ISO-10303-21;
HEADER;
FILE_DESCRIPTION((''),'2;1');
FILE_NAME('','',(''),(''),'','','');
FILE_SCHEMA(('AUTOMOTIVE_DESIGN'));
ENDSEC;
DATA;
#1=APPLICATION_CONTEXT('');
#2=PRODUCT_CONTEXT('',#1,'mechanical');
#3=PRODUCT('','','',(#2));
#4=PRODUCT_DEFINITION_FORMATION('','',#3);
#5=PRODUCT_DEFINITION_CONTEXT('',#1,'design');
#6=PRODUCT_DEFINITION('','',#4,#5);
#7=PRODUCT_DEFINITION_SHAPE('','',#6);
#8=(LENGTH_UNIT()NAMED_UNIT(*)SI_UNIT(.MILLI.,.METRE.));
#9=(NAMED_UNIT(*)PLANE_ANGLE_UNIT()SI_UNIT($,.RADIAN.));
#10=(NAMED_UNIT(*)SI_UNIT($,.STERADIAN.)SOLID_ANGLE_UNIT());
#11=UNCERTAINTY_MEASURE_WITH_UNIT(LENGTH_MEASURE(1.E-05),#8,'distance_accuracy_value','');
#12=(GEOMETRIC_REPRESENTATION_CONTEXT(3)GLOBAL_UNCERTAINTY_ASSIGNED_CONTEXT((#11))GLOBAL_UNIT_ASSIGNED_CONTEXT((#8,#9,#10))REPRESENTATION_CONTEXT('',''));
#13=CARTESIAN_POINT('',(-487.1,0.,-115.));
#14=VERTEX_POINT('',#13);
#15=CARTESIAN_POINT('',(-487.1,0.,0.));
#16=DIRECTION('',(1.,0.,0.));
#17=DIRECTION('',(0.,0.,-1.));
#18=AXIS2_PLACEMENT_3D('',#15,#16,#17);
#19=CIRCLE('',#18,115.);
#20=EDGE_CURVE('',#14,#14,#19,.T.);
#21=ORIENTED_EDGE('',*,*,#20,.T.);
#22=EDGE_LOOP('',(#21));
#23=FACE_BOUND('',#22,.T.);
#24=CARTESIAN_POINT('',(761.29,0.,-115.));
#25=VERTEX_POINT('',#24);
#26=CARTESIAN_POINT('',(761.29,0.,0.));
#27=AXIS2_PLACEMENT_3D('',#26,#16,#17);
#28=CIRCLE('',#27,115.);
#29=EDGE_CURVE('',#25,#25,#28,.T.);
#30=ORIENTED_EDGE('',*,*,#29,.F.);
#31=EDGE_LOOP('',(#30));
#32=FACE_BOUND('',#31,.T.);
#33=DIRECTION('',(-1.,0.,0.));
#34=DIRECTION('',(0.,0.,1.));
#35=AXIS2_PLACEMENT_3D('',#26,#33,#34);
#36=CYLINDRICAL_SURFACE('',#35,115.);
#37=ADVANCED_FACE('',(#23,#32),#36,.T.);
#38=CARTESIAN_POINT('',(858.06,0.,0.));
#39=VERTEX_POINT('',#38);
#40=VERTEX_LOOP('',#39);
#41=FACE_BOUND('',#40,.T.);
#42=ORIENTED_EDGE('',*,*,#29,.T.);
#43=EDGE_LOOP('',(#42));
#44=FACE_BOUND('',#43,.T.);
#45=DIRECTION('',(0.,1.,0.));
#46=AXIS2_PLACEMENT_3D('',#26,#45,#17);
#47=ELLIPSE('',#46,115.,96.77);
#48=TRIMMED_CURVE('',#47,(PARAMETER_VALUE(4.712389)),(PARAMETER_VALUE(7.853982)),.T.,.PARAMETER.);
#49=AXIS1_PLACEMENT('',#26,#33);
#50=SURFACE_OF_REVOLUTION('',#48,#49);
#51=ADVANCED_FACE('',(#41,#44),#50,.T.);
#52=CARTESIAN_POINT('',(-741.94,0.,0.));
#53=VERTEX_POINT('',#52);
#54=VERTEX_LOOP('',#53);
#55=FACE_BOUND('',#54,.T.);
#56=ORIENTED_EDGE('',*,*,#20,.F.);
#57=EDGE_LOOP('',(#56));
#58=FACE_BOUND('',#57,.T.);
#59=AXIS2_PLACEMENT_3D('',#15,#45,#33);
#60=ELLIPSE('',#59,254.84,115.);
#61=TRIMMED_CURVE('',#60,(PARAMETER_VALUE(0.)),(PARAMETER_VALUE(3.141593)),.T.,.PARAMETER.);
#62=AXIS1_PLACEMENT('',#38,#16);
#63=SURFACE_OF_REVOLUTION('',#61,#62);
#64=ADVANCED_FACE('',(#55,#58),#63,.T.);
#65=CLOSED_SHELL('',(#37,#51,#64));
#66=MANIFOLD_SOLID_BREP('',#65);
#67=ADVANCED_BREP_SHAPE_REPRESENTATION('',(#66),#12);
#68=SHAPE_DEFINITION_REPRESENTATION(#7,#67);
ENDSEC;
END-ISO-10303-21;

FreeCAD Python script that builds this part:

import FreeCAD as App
import Part
import Sketcher

doc = App.newDocument("Part")
body = doc.addObject("PartDesign::Body", "Body")

sketch1 = doc.addObject("Sketcher::SketchObject", "Sketch")
body.addObject(sketch1)
sketch1.AttachmentSupport = (doc.YZ_Plane, [""])
sketch1.MapMode = "FlatFace"
sketch1.addGeometry(Part.Circle(App.Vector(0, 0, 0), App.Vector(0, 0, 1), 115), False)
sketch1.addConstraint([
    Sketcher.Constraint("Coincident", 0, 3, -1, 1),
    Sketcher.Constraint("Diameter", 0, 230.0),
])
pad1 = doc.addObject("PartDesign::Pad", "Pad")
body.addObject(pad1)
pad1.Profile = sketch1
pad1.Length = 761.29

sketch2 = doc.addObject("Sketcher::SketchObject", "Sketch001")
body.addObject(sketch2)
sketch2.AttachmentSupport = (doc.YZ_Plane, [""])
sketch2.MapMode = "FlatFace"
sketch2.AttachmentOffset = App.Placement(App.Vector(0, 0, -487.1), App.Rotation())
sketch2.addGeometry(Part.Circle(App.Vector(0, 0, 0), App.Vector(0, 0, 1), 115), False)
sketch2.addConstraint([
    Sketcher.Constraint("Coincident", 0, 3, -1, 1),
    Sketcher.Constraint("Diameter", 0, 230.0),
])
pad2 = doc.addObject("PartDesign::Pad", "Pad001")
body.addObject(pad2)
pad2.Profile = sketch2
pad2.Length = 487.1

sketch3 = doc.addObject("Sketcher::SketchObject", "Sketch002")
body.addObject(sketch3)
sketch3.AttachmentSupport = (doc.XZ_Plane, [""])
sketch3.MapMode = "FlatFace"
sketch3.addGeometry([
    Part.LineSegment(App.Vector(761.29, 0, 0), App.Vector(858.06, 0, 0)),
    Part.BSplineCurve([App.Vector(858.06, 0, 0), App.Vector(858.06, -115, 0), App.Vector(761.29, -115, 0)], [3, 3], [4.71238898, 6.283185307], False, 2, [1, 0.707106781, 1], False),
    Part.LineSegment(App.Vector(761.29, -115, 0), App.Vector(761.29, 0, 0)),
], False)
sketch3.addConstraint([
    Sketcher.Constraint("Block", 1),
    Sketcher.Constraint("Coincident", 0, 2, 1, 1),
    Sketcher.Constraint("Coincident", 1, 2, 2, 1),
    Sketcher.Constraint("Coincident", 2, 2, 0, 1),
    Sketcher.Constraint("Horizontal", 0),
    Sketcher.Constraint("Vertical", 2),
])
revolution = doc.addObject("PartDesign::Revolution", "Revolution")
body.addObject(revolution)
revolution.Profile = sketch3
revolution.ReferenceAxis = (sketch3, ["H_Axis"])
revolution.Angle = 360

sketch4 = doc.addObject("Sketcher::SketchObject", "Sketch003")
body.addObject(sketch4)
sketch4.AttachmentSupport = (doc.XZ_Plane, [""])
sketch4.MapMode = "FlatFace"
sketch4.addGeometry([
    Part.LineSegment(App.Vector(-487.1, 0, 0), App.Vector(-741.94, 0, 0)),
    Part.BSplineCurve([App.Vector(-741.94, 0, 0), App.Vector(-741.94, 115, 0), App.Vector(-487.1, 115, 0)], [3, 3], [0, 1.570796327], False, 2, [1, 0.707106781, 1], False),
    Part.LineSegment(App.Vector(-487.1, 115, 0), App.Vector(-487.1, 0, 0)),
], False)
sketch4.addConstraint([
    Sketcher.Constraint("Block", 1),
    Sketcher.Constraint("Coincident", 0, 2, 1, 1),
    Sketcher.Constraint("Coincident", 1, 2, 2, 1),
    Sketcher.Constraint("Coincident", 2, 2, 0, 1),
    Sketcher.Constraint("Horizontal", 0),
    Sketcher.Constraint("Vertical", 2),
])
revolution2 = doc.addObject("PartDesign::Revolution", "Revolution001")
body.addObject(revolution2)
revolution2.Profile = sketch4
revolution2.ReferenceAxis = (sketch4, ["H_Axis"])
revolution2.Angle = 360

doc.recompute()
